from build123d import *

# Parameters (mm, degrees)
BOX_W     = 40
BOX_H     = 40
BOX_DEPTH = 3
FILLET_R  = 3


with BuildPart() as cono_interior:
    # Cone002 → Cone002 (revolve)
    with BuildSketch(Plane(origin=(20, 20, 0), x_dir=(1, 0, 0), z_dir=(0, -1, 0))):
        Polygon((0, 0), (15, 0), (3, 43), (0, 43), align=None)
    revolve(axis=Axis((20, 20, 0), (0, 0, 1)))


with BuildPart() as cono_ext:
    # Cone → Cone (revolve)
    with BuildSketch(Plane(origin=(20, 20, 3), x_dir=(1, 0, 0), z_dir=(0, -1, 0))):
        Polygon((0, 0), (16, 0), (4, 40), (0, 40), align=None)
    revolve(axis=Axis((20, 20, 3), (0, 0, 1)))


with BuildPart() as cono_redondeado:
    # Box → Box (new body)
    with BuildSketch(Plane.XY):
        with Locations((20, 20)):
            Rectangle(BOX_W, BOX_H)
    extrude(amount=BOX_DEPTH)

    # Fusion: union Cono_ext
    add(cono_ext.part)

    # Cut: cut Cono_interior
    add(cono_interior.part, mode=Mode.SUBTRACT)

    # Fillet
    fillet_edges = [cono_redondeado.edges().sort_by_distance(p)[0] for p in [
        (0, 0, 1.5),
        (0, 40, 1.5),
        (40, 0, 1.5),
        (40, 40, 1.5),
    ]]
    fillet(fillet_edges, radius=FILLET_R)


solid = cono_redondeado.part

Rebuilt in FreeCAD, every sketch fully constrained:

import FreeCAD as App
import Part
import Sketcher


def edges_at(feature, points):
    """Names of the edges that pass closest to the given points."""
    edges = feature.Shape.Edges
    near = lambda p: min(range(len(edges)), key=lambda i: edges[i].distToShape(Part.Vertex(*p))[0])
    return sorted({f"Edge{near(p) + 1}" for p in points})


def add_polygon(sketch, points):
    """Adds a closed chain of lines whose ends are joined by coincident constraints."""
    first, n = sketch.GeometryCount, len(points)
    for a, b in zip(points, points[1:] + points[:1]):
        sketch.addGeometry(Part.LineSegment(App.Vector(*a, 0), App.Vector(*b, 0)), False)
    for i in range(n):
        sketch.addConstraint(Sketcher.Constraint("Coincident", first + i, 2, first + (i + 1) % n, 1))

doc = App.newDocument("Part")
body = doc.addObject("PartDesign::Body", "Body")

# Sketch on XZ plane
sketch1 = body.newObject("Sketcher::SketchObject", "Sketch")
sketch1.AttachmentSupport = (doc.getObject("XZ_Plane"), [""])
sketch1.MapMode = "FlatFace"
sketch1.AttachmentOffset = App.Placement(App.Vector(0, 0, -20), App.Rotation())
add_polygon(sketch1, [(20, 0), (35, 0), (23, 43), (20, 43)])  # lines 0-3
sketch1.addGeometry(Part.LineSegment(App.Vector(20, 0, 0), App.Vector(20, 43, 0)), True)  # axis
sketch1.addConstraint([
    Sketcher.Constraint("Horizontal", 0),
    Sketcher.Constraint("Horizontal", 2),
    Sketcher.Constraint("Vertical", 3),
    Sketcher.Constraint("Vertical", 4),
    Sketcher.Constraint("Coincident", 4, 1, 3, 2),
    Sketcher.Constraint("PointOnObject", 0, 2, -1),
    Sketcher.Constraint("Horizontal", 1, 2, 4, 2),
    Sketcher.Constraint("DistanceX", 0, 1, 0, 2, 15.0),
    Sketcher.Constraint("DistanceX", 2, 2, 2, 1, 3.0),
    Sketcher.Constraint("DistanceY", 3, 2, 3, 1, 43.0),
    Sketcher.Constraint("DistanceX", -1, 1, 0, 2, 35.0),
])
revolution = body.newObject("PartDesign::Revolution", "Revolution")
revolution.Profile = sketch1
revolution.ReferenceAxis = (sketch1, ["Axis0"])
revolution.Angle = 360
body2 = doc.addObject("PartDesign::Body", "Body001")

# Sketch on XZ plane
sketch2 = body2.newObject("Sketcher::SketchObject", "Sketch001")
sketch2.AttachmentSupport = (doc.getObject("XZ_Plane001"), [""])
sketch2.MapMode = "FlatFace"
sketch2.AttachmentOffset = App.Placement(App.Vector(0, 0, -20), App.Rotation())
add_polygon(sketch2, [(20, 3), (36, 3), (24, 43), (20, 43)])  # lines 0-3
sketch2.addGeometry(Part.LineSegment(App.Vector(20, 3, 0), App.Vector(20, 43, 0)), True)  # axis
sketch2.addConstraint([
    Sketcher.Constraint("Horizontal", 0),
    Sketcher.Constraint("Horizontal", 2),
    Sketcher.Constraint("Vertical", 3),
    Sketcher.Constraint("Vertical", 4),
    Sketcher.Constraint("Coincident", 4, 1, 3, 2),
    Sketcher.Constraint("Horizontal", 1, 2, 4, 2),
    Sketcher.Constraint("DistanceX", 0, 1, 0, 2, 16.0),
    Sketcher.Constraint("DistanceX", 2, 2, 2, 1, 4.0),
    Sketcher.Constraint("DistanceY", 3, 2, 3, 1, 40.0),
    Sketcher.Constraint("DistanceX", -1, 1, 0, 2, 36.0),
    Sketcher.Constraint("DistanceY", -1, 1, 0, 2, 3.0),
])
revolution2 = body2.newObject("PartDesign::Revolution", "Revolution001")
revolution2.Profile = sketch2
revolution2.ReferenceAxis = (sketch2, ["Axis0"])
revolution2.Angle = 360
body3 = doc.addObject("PartDesign::Body", "Body002")

# Sketch on XY plane
sketch3 = body3.newObject("Sketcher::SketchObject", "Sketch002")
sketch3.AttachmentSupport = (doc.getObject("XY_Plane002"), [""])
sketch3.MapMode = "FlatFace"
add_polygon(sketch3, [(0, 40), (0, 0), (40, 0), (40, 40)])  # lines 0-3
sketch3.addConstraint([
    Sketcher.Constraint("Vertical", 0),
    Sketcher.Constraint("Horizontal", 1),
    Sketcher.Constraint("Vertical", 2),
    Sketcher.Constraint("Horizontal", 3),
    Sketcher.Constraint("Coincident", 0, 2, -1, 1),
    Sketcher.Constraint("Equal", 3, 0),
    Sketcher.Constraint("DistanceX", 1, 1, 1, 2, 40.0),
])
pad1 = body3.newObject("PartDesign::Pad", "Pad")
pad1.Profile = sketch3
pad1.Length = 3
doc.recompute()

boolean = body3.newObject("PartDesign::Boolean", "Boolean")
boolean.Type = "Fuse"
boolean.addObjects([body2])
doc.recompute()

boolean2 = body3.newObject("PartDesign::Boolean", "Boolean001")
boolean2.Type = "Cut"
boolean2.addObjects([body])
doc.recompute()

fillet = body3.newObject("PartDesign::Fillet", "Fillet")
fillet.Base = (boolean2, edges_at(boolean2, [
    (0, 0, 1.5),
    (0, 40, 1.5),
    (40, 0, 1.5),
    (40, 40, 1.5),
]))
fillet.Radius = 3

doc.recompute()
